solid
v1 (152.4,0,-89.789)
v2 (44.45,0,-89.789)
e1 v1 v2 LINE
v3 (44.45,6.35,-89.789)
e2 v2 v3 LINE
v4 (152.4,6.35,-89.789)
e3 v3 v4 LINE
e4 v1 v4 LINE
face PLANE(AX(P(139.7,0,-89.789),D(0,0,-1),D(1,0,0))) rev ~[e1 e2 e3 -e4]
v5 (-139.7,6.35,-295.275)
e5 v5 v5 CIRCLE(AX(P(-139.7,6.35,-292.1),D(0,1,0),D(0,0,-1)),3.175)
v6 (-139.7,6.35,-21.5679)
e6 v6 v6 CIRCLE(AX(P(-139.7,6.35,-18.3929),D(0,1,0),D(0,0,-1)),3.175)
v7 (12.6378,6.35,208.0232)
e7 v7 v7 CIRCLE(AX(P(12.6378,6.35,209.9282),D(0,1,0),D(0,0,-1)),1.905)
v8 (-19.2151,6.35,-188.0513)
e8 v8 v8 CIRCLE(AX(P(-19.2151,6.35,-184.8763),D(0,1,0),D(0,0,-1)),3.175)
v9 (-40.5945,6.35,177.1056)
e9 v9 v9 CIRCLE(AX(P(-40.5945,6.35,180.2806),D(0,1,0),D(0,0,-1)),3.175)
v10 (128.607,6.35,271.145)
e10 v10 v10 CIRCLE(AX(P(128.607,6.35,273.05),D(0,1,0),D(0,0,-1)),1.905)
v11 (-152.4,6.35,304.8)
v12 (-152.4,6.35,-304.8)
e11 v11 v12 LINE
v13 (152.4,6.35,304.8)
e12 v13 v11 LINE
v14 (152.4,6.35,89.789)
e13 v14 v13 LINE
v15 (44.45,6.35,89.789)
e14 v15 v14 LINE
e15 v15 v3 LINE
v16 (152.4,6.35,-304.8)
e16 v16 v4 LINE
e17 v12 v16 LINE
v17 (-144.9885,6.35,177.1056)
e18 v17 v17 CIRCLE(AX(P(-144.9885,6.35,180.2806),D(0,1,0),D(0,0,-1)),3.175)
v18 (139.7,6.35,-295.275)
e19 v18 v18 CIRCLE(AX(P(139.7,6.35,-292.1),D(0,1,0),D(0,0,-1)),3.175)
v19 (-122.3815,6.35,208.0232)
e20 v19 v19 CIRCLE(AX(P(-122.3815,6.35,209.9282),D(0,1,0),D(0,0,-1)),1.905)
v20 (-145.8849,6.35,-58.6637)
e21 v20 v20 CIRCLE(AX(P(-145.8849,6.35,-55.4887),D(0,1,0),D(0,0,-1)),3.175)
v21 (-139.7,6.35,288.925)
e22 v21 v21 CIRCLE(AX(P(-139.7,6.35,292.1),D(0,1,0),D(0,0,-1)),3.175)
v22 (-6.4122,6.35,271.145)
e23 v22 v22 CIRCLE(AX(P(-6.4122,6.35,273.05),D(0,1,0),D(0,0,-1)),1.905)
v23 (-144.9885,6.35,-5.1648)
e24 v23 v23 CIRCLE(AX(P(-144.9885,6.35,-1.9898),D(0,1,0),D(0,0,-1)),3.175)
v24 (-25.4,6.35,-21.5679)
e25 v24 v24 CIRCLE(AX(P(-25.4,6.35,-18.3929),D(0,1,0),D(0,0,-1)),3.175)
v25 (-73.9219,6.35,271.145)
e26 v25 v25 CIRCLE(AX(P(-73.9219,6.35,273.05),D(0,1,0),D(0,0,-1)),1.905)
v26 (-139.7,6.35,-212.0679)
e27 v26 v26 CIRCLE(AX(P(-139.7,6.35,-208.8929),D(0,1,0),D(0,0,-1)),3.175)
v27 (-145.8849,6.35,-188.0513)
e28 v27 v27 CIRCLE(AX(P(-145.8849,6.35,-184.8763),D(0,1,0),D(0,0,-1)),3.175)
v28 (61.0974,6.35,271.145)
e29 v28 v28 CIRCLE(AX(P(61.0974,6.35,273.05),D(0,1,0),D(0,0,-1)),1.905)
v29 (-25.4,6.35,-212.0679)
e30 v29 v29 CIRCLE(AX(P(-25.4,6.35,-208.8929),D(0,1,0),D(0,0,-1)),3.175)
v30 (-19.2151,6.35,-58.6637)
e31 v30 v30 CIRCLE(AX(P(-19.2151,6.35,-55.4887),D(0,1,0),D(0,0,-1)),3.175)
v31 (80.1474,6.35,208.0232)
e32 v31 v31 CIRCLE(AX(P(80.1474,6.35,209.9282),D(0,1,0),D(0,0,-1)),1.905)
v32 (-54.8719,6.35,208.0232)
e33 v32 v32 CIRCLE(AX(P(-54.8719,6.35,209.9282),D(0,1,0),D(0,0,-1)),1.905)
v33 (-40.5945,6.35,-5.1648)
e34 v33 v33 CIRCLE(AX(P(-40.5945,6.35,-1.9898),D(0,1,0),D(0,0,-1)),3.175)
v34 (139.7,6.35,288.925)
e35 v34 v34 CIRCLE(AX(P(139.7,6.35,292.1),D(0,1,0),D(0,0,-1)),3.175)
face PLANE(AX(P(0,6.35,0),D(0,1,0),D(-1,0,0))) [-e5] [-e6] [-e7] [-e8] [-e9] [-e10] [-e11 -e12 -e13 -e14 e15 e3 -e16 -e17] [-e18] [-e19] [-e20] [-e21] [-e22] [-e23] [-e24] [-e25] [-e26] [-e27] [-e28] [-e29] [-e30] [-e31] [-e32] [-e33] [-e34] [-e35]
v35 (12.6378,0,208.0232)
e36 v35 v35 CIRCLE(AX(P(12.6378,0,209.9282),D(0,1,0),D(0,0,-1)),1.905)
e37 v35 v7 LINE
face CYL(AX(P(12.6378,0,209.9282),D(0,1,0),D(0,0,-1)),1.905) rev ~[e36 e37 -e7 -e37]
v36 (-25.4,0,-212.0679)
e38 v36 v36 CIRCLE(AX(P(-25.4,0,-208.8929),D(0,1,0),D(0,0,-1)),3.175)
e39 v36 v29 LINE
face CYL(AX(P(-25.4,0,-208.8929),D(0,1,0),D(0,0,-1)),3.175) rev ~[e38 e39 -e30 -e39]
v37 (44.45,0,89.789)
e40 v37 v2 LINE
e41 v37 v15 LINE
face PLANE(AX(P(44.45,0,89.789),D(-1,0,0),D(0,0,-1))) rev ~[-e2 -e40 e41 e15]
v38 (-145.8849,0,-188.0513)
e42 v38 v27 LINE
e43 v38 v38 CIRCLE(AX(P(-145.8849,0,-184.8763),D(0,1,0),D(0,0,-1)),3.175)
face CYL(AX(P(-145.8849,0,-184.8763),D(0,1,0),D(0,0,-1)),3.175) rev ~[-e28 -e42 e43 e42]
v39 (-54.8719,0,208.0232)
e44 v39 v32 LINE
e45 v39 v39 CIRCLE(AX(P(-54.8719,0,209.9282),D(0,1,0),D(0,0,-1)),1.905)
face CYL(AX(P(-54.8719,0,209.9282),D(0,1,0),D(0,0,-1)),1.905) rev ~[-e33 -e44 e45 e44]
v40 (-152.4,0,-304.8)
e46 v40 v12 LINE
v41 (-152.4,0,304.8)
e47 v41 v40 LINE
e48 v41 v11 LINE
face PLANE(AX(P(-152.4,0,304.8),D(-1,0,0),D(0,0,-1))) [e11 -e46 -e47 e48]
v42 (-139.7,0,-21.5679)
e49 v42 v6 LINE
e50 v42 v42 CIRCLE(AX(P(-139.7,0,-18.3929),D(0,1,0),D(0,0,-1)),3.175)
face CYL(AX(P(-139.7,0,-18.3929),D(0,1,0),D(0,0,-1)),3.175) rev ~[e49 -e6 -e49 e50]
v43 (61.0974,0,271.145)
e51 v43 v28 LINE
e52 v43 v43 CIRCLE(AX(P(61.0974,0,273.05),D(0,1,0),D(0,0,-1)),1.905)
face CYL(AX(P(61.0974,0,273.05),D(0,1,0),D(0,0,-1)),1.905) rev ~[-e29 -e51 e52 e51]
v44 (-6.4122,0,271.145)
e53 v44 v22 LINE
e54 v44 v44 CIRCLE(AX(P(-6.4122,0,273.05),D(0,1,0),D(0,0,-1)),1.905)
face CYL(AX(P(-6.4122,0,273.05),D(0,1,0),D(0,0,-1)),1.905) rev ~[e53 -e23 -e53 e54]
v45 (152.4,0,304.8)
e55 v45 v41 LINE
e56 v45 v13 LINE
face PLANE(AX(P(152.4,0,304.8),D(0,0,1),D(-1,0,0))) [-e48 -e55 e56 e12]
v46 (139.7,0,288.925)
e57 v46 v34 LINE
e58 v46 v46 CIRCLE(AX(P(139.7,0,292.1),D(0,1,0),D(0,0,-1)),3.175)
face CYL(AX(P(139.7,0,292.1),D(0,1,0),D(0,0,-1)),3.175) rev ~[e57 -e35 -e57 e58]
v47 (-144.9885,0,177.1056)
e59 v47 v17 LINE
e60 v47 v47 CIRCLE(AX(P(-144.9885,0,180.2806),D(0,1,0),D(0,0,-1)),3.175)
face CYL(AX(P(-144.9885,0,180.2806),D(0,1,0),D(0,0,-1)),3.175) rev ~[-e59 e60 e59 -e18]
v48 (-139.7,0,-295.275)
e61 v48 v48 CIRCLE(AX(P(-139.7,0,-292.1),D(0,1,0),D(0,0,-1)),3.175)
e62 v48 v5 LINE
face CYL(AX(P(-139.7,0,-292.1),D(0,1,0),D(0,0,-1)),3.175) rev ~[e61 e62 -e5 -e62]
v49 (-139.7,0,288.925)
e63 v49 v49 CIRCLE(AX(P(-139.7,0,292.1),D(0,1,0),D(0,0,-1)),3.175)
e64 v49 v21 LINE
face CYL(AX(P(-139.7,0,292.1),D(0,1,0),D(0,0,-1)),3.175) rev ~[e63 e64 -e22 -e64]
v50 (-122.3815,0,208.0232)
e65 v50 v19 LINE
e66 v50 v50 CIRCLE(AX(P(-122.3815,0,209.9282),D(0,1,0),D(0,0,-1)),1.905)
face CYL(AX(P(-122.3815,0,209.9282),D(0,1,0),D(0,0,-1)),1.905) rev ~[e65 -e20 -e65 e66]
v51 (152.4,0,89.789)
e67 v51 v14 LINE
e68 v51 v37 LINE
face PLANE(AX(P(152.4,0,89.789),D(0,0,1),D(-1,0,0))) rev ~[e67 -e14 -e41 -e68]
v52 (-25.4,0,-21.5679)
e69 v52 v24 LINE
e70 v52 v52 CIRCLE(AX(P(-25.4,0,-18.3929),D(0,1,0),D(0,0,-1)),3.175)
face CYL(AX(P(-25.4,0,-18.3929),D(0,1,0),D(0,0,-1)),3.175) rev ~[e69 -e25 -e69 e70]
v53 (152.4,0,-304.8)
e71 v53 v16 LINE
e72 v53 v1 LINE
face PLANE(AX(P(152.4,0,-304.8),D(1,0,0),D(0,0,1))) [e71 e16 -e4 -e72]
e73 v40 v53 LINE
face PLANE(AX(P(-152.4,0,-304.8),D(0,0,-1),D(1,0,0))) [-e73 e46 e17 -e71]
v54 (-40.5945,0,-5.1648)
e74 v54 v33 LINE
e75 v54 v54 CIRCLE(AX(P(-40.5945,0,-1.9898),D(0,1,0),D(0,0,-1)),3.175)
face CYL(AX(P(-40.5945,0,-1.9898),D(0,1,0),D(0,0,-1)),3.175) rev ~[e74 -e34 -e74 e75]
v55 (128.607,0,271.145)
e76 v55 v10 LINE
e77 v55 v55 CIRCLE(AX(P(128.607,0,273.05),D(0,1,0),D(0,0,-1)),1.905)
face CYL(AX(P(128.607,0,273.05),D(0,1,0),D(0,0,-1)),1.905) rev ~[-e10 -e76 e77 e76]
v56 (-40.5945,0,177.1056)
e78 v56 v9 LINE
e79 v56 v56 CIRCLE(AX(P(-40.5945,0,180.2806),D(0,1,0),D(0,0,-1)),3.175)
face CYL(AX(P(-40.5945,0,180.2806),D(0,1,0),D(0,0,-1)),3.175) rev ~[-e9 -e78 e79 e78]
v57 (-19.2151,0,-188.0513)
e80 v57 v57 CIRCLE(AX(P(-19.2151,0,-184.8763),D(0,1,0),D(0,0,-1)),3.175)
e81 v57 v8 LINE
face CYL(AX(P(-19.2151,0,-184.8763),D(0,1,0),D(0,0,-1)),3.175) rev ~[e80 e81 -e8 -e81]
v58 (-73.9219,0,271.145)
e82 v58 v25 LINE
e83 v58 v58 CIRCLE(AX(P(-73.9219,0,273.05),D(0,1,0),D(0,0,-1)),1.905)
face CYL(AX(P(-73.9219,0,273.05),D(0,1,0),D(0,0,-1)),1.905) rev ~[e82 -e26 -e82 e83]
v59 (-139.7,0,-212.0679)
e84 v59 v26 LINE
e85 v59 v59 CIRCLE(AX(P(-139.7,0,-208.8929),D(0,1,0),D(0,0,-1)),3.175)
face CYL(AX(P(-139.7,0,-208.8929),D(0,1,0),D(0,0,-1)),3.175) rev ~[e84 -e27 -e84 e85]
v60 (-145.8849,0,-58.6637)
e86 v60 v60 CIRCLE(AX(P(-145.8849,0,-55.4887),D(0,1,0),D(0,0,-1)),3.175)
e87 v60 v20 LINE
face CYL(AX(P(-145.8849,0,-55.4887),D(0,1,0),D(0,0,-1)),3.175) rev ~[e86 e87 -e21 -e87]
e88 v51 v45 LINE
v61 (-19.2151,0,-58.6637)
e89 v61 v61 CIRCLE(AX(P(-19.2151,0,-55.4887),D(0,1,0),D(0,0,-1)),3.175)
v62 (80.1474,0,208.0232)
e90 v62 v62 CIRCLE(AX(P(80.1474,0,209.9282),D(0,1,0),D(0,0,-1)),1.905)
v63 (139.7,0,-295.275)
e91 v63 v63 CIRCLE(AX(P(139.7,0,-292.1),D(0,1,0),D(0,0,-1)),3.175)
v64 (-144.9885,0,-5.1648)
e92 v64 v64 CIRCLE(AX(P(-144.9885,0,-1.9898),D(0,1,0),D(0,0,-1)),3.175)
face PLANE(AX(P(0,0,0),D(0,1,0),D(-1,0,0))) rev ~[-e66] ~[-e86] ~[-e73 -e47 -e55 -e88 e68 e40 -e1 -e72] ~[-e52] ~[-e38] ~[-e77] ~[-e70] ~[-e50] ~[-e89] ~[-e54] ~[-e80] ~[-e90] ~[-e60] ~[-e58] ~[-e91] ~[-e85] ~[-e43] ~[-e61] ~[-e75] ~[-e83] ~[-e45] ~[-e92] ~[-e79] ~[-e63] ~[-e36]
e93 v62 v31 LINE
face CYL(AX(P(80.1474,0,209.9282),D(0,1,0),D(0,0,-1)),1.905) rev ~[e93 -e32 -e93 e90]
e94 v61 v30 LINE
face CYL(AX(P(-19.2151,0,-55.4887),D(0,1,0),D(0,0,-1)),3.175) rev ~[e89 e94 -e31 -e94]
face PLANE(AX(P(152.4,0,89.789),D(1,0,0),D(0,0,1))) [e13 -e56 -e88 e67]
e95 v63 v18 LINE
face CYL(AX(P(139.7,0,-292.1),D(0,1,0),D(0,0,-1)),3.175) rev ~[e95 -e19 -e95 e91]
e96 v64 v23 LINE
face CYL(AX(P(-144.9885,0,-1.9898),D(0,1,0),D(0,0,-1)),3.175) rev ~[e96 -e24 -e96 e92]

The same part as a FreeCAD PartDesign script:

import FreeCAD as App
import Part
import Sketcher
from FreeCAD import Vector
Q = App.Units.Quantity


def add_polygon(sketch, points):
    """Adds a closed chain of lines whose ends are joined by coincident constraints."""
    first, n = sketch.GeometryCount, len(points)
    for a, b in zip(points, points[1:] + points[:1]):
        sketch.addGeometry(Part.LineSegment(App.Vector(*a, 0), App.Vector(*b, 0)), False)
    for i in range(n):
        sketch.addConstraint(Sketcher.Constraint("Coincident", first + i, 2, first + (i + 1) % n, 1))

doc = App.newDocument("Part")
body = doc.addObject("PartDesign::Body", "Body")

sketch1 = doc.addObject("Sketcher::SketchObject", "Sketch")
body.addObject(sketch1)
sketch1.AttachmentSupport = (doc.XZ_Plane, [""])
sketch1.MapMode = "FlatFace"
add_polygon(sketch1, [(152.4, 89.789), (44.45, 89.789), (44.45, -89.789), (152.4, -89.789), (152.4, -304.8), (-152.4, -304.8), (-152.4, 304.8), (152.4, 304.8)])
sketch1.addConstraint(Sketcher.Constraint("Horizontal", 0))
sketch1.addConstraint(Sketcher.Constraint("Vertical", 1))
sketch1.addConstraint(Sketcher.Constraint("Horizontal", 2))
sketch1.addConstraint(Sketcher.Constraint("Vertical", 3))
sketch1.addConstraint(Sketcher.Constraint("Horizontal", 4))
sketch1.addConstraint(Sketcher.Constraint("Vertical", 5))
sketch1.addConstraint(Sketcher.Constraint("Horizontal", 6))
sketch1.addConstraint(Sketcher.Constraint("Vertical", 7))
sketch1.addConstraint(Sketcher.Constraint("Symmetric", 3, 2, 5, 2, -1, 1))
sketch1.addConstraint(Sketcher.Constraint("Symmetric", 2, 2, 7, 2, -1))
sketch1.addConstraint(Sketcher.Constraint("DistanceX", 4, 2, 4, 1, Q("12 in")))
sketch1.addConstraint(Sketcher.Constraint("DistanceY", 5, 1, 5, 2, Q("24 in")))
sketch1.addConstraint(Sketcher.Constraint("DistanceX", 0, 2, 0, 1, Q("4.25 in")))
sketch1.addConstraint(Sketcher.Constraint("DistanceY", 1, 2, 1, 1, Q("7.07 in")))
pad1 = doc.addObject("PartDesign::Pad", "Pad")
body.addObject(pad1)
pad1.Profile = sketch1
pad1.Length = Q("0.25 in")
pad1.Reversed = True

sketch2 = doc.addObject("Sketcher::SketchObject", "Sketch001")
body.addObject(sketch2)
sketch2.AttachmentSupport = (doc.XZ_Plane, [""])
sketch2.MapMode = "FlatFace"
sketch2.addGeometry(Part.Circle(Vector(139.7, 292.1, 0), Vector(0, 0, 1), 3.175), False)
sketch2.addGeometry(Part.Circle(Vector(-139.7, 292.1, 0), Vector(0, 0, 1), 3.175), False)
sketch2.addGeometry(Part.Circle(Vector(-139.7, -292.1, 0), Vector(0, 0, 1), 3.175), False)
sketch2.addGeometry(Part.Circle(Vector(139.7, -292.1, 0), Vector(0, 0, 1), 3.175), False)
sketch2.addGeometry(Part.Circle(Vector(-19.2151, -55.4887, 0), Vector(0, 0, 1), 3.175), False)
sketch2.addGeometry(Part.Circle(Vector(-19.2151, -184.8763, 0), Vector(0, 0, 1), 3.175), False)
sketch2.addGeometry(Part.Circle(Vector(-145.8849, -184.8763, 0), Vector(0, 0, 1), 3.175), False)
sketch2.addGeometry(Part.Circle(Vector(-145.8849, -55.4887, 0), Vector(0, 0, 1), 3.175), False)
sketch2.addGeometry(Part.Circle(Vector(-144.9885, 180.2806, 0), Vector(0, 0, 1), 3.175), False)
sketch2.addGeometry(Part.Circle(Vector(-40.5945, 180.2806, 0), Vector(0, 0, 1), 3.175), False)
sketch2.addGeometry(Part.Circle(Vector(-40.5945, -1.9898, 0), Vector(0, 0, 1), 3.175), False)
sketch2.addGeometry(Part.Circle(Vector(-144.9885, -1.9898, 0), Vector(0, 0, 1), 3.175), False)
sketch2.addConstraint(Sketcher.Constraint("Equal", 0, 1))
sketch2.addConstraint(Sketcher.Constraint("Equal", 1, 2))
sketch2.addConstraint(Sketcher.Constraint("Equal", 2, 3))
sketch2.addConstraint(Sketcher.Constraint("Equal", 3, 4))
sketch2.addConstraint(Sketcher.Constraint("Equal", 4, 5))
sketch2.addConstraint(Sketcher.Constraint("Equal", 5, 6))
sketch2.addConstraint(Sketcher.Constraint("Equal", 6, 7))
sketch2.addConstraint(Sketcher.Constraint("Equal", 7, 8))
sketch2.addConstraint(Sketcher.Constraint("Equal", 8, 9))
sketch2.addConstraint(Sketcher.Constraint("Equal", 9, 10))
sketch2.addConstraint(Sketcher.Constraint("Equal", 10, 11))
sketch2.addConstraint(Sketcher.Constraint("Symmetric", 0, 3, 2, 3, -1, 1))
sketch2.addConstraint(Sketcher.Constraint("Symmetric", 1, 3, 3, 3, -1, 1))
sketch2.addConstraint(Sketcher.Constraint("Symmetric", 0, 3, 1, 3, -2))
sketch2.addConstraint(Sketcher.Constraint("Horizontal", 5, 3, 6, 3))
sketch2.addConstraint(Sketcher.Constraint("Horizontal", 4, 3, 7, 3))
sketch2.addConstraint(Sketcher.Constraint("Horizontal", 8, 3, 9, 3))
sketch2.addConstraint(Sketcher.Constraint("Horizontal", 10, 3, 11, 3))
sketch2.addConstraint(Sketcher.Constraint("Vertical", 4, 3, 5, 3))
sketch2.addConstraint(Sketcher.Constraint("Vertical", 6, 3, 7, 3))
sketch2.addConstraint(Sketcher.Constraint("Vertical", 9, 3, 10, 3))
sketch2.addConstraint(Sketcher.Constraint("Vertical", 8, 3, 11, 3))
sketch2.addConstraint(Sketcher.Constraint("Diameter", 0, Q("0.25 in")))
sketch2.addConstraint(Sketcher.Constraint("DistanceX", 1, 3, 0, 3, Q("11 in")))
sketch2.addConstraint(Sketcher.Constraint("DistanceY", 2, 3, 1, 3, Q("23 in")))
sketch2.addConstraint(Sketcher.Constraint("DistanceX", 8, 3, 9, 3, Q("4.11 in")))
sketch2.addConstraint(Sketcher.Constraint("DistanceY", 5, 3, 4, 3, Q("5.094 in")))
sketch2.addConstraint(Sketcher.Constraint("DistanceX", 6, 3, 5, 3, Q("4.987 in")))
sketch2.addConstraint(Sketcher.Constraint("DistanceY", 10, 3, 9, 3, Q("7.176 in")))
sketch2.addConstraint(Sketcher.Constraint("DistanceX", 4, 3, -1, 1, Q("0.7565 in")))
sketch2.addConstraint(Sketcher.Constraint("DistanceY", 4, 3, -1, 1, Q("2.1846 in")))
sketch2.addConstraint(Sketcher.Constraint("DistanceX", 8, 3, -1, 1, Q("5.7082 in")))
sketch2.addConstraint(Sketcher.Constraint("DistanceY", -1, 1, 8, 3, Q("180.2806 mm")))
doc.recompute()
hole = doc.addObject("PartDesign::Hole", "Hole")
body.addObject(hole)
hole.Profile = sketch2
hole.ThreadType = "None"
hole.Diameter = Q("0.25 in")
hole.DepthType = "ThroughAll"

sketch3 = doc.addObject("Sketcher::SketchObject", "Sketch002")
body.addObject(sketch3)
sketch3.AttachmentSupport = (doc.XZ_Plane, [""])
sketch3.MapMode = "FlatFace"
sketch3.addGeometry(Part.Circle(Vector(-122.3815, 209.9282, 0), Vector(0, 0, 1), 1.905), False)
sketch3.addGeometry(Part.Circle(Vector(-73.9219, 273.05, 0), Vector(0, 0, 1), 1.905), False)
sketch3.addGeometry(Part.Circle(Vector(-54.8719, 209.9282, 0), Vector(0, 0, 1), 1.905), False)
sketch3.addGeometry(Part.Circle(Vector(-6.4122, 273.05, 0), Vector(0, 0, 1), 1.905), False)
sketch3.addGeometry(Part.Circle(Vector(12.6378, 209.9282, 0), Vector(0, 0, 1), 1.905), False)
sketch3.addGeometry(Part.Circle(Vector(61.0974, 273.05, 0), Vector(0, 0, 1), 1.905), False)
sketch3.addGeometry(Part.Circle(Vector(80.1474, 209.9282, 0), Vector(0, 0, 1), 1.905), False)
sketch3.addGeometry(Part.Circle(Vector(128.607, 273.05, 0), Vector(0, 0, 1), 1.905), False)
sketch3.addConstraint(Sketcher.Constraint("Equal", 0, 1))
sketch3.addConstraint(Sketcher.Constraint("Equal", 1, 2))
sketch3.addConstraint(Sketcher.Constraint("Equal", 2, 3))
sketch3.addConstraint(Sketcher.Constraint("Equal", 3, 4))
sketch3.addConstraint(Sketcher.Constraint("Equal", 4, 5))
sketch3.addConstraint(Sketcher.Constraint("Equal", 5, 6))
sketch3.addConstraint(Sketcher.Constraint("Equal", 6, 7))
sketch3.addConstraint(Sketcher.Constraint("Horizontal", 0, 3, 2, 3))
sketch3.addConstraint(Sketcher.Constraint("Horizontal", 1, 3, 3, 3))
sketch3.addConstraint(Sketcher.Constraint("Horizontal", 2, 3, 4, 3))
sketch3.addConstraint(Sketcher.Constraint("Horizontal", 3, 3, 5, 3))
sketch3.addConstraint(Sketcher.Constraint("Horizontal", 4, 3, 6, 3))
sketch3.addConstraint(Sketcher.Constraint("Horizontal", 5, 3, 7, 3))
sketch3.addConstraint(Sketcher.Constraint("Diameter", 0, Q("0.15 in")))
sketch3.addConstraint(Sketcher.Constraint("DistanceY", -1, 1, 1, 3, Q("10.75 in")))
sketch3.addConstraint(Sketcher.Constraint("DistanceX", 1, 3, 2, 3, Q("0.75 in")))
sketch3.addConstraint(Sketcher.Constraint("DistanceX", 3, 3, 4, 3, Q("0.75 in")))
sketch3.addConstraint(Sketcher.Constraint("DistanceX", 5, 3, 6, 3, Q("0.75 in")))
sketch3.addConstraint(Sketcher.Constraint("DistanceY", -1, 1, 0, 3, Q("8.2649 in")))
sketch3.addConstraint(Sketcher.Constraint("DistanceX", 1, 3, -1, 1, Q("2.9103 in")))
sketch3.addConstraint(Sketcher.Constraint("DistanceX", -1, 1, 5, 3, Q("2.4054 in")))
sketch3.addConstraint(Sketcher.Constraint("DistanceX", 0, 3, -1, 1, Q("122.3815 mm")))
sketch3.addConstraint(Sketcher.Constraint("DistanceX", 3, 3, -1, 1, Q("6.4122 mm")))
sketch3.addConstraint(Sketcher.Constraint("DistanceX", -1, 1, 7, 3, Q("128.607 mm")))
doc.recompute()
hole2 = doc.addObject("PartDesign::Hole", "Hole001")
body.addObject(hole2)
hole2.Profile = sketch3
hole2.ThreadType = "None"
hole2.Diameter = Q("0.15 in")
hole2.DepthType = "ThroughAll"

sketch4 = doc.addObject("Sketcher::SketchObject", "Sketch003")
body.addObject(sketch4)
sketch4.AttachmentSupport = (doc.XZ_Plane, [""])
sketch4.MapMode = "FlatFace"
sketch4.addGeometry(Part.Circle(Vector(-139.7, -18.3929, 0), Vector(0, 0, 1), 3.175), False)
sketch4.addGeometry(Part.Circle(Vector(-25.4, -18.3929, 0), Vector(0, 0, 1), 3.175), False)
sketch4.addGeometry(Part.Circle(Vector(-25.4, -208.8929, 0), Vector(0, 0, 1), 3.175), False)
sketch4.addGeometry(Part.Circle(Vector(-139.7, -208.8929, 0), Vector(0, 0, 1), 3.175), False)
sketch4.addConstraint(Sketcher.Constraint("Equal", 0, 1))
sketch4.addConstraint(Sketcher.Constraint("Equal", 1, 2))
sketch4.addConstraint(Sketcher.Constraint("Equal", 2, 3))
sketch4.addConstraint(Sketcher.Constraint("Horizontal", 0, 3, 1, 3))
sketch4.addConstraint(Sketcher.Constraint("Horizontal", 2, 3, 3, 3))
sketch4.addConstraint(Sketcher.Constraint("Vertical", 1, 3, 2, 3))
sketch4.addConstraint(Sketcher.Constraint("Vertical", 0, 3, 3, 3))
sketch4.addConstraint(Sketcher.Constraint("Diameter", 0, Q("0.25 in")))
sketch4.addConstraint(Sketcher.Constraint("DistanceX", 1, 3, -1, 1, Q("1 in")))
sketch4.addConstraint(Sketcher.Constraint("DistanceX", 0, 3, -1, 1, Q("5.5 in")))
sketch4.addConstraint(Sketcher.Constraint("DistanceY", 2, 3, 1, 3, Q("7.5 in")))
sketch4.addConstraint(Sketcher.Constraint("DistanceY", 0, 3, -1, 1, Q("18.393 mm")))
doc.recompute()
hole3 = doc.addObject("PartDesign::Hole", "Hole002")
body.addObject(hole3)
hole3.Profile = sketch4
hole3.ThreadType = "None"
hole3.Diameter = Q("0.25 in")
hole3.DepthType = "ThroughAll"

doc.recompute()
